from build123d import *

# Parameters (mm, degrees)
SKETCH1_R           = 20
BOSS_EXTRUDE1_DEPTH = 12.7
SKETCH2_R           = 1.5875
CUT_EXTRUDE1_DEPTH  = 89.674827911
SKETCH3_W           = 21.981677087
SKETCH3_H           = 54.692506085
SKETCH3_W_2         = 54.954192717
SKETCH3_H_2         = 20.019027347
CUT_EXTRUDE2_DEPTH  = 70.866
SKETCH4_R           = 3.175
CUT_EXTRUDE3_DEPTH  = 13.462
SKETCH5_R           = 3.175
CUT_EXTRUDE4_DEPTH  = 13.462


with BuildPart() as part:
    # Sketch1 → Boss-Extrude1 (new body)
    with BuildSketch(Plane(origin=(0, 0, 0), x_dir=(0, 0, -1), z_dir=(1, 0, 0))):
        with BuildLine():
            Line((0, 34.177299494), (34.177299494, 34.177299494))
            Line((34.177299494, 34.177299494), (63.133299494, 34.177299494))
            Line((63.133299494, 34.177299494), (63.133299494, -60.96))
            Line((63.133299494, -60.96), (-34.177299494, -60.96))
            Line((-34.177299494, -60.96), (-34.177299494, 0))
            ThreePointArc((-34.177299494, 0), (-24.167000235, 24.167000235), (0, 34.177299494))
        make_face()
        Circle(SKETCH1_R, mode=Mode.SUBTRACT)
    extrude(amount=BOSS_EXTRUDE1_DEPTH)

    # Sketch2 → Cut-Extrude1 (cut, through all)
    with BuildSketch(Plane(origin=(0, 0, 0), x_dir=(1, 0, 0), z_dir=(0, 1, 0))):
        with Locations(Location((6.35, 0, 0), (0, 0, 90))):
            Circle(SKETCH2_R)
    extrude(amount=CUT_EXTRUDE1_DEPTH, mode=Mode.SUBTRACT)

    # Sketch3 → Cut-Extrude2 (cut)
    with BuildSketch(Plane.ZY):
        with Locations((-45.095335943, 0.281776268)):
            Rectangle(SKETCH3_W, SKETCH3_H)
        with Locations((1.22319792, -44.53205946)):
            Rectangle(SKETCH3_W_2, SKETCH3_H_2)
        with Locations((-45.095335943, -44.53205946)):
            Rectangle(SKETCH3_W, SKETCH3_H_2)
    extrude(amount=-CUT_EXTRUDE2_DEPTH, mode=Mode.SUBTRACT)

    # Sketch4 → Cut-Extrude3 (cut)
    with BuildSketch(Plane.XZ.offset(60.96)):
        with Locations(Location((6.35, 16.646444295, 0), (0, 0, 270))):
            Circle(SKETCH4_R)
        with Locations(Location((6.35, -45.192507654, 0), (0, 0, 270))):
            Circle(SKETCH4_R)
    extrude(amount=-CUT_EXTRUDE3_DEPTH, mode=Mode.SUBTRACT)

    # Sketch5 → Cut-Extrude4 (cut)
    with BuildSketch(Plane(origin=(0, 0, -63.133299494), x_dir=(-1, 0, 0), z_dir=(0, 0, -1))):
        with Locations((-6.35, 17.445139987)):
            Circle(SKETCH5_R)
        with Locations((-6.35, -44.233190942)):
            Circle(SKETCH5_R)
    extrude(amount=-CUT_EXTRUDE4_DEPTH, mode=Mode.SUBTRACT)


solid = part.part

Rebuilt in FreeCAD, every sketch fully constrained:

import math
import FreeCAD as App
import Part
import Sketcher
from FreeCAD import Vector
Q = App.Units.Quantity

doc = App.newDocument("Part")
body = doc.addObject("PartDesign::Body", "Body")

# Sketch on YZ plane
sketch1 = doc.addObject("Sketcher::SketchObject", "Sketch")
body.addObject(sketch1)
sketch1.AttachmentSupport = (doc.YZ_Plane, [""])
sketch1.MapMode = "FlatFace"
sketch1.addGeometry([
    Part.LineSegment(Vector(34, -63, 0), Vector(34, 0, 0)),  # 0
    Part.ArcOfCircle(Part.Circle(Vector(0, 0, 0), Vector(0, 0, 1), 34), math.radians(0), math.radians(90)),  # 1
    Part.LineSegment(Vector(0, 34, 0), Vector(-61, 34, 0)),  # 2
    Part.LineSegment(Vector(-61, 34, 0), Vector(-61, -63, 0)),  # 3
    Part.LineSegment(Vector(-61, -63, 0), Vector(34, -63, 0)),  # 4
    Part.Circle(Vector(0, 0, 0), Vector(0, 0, 1), 20),  # 5
], False)
sketch1.addConstraint([
    Sketcher.Constraint("Tangent", 0, 2, 1, 1),
    Sketcher.Constraint("Tangent", 1, 2, 2, 1),
    Sketcher.Constraint("Coincident", 2, 2, 3, 1),
    Sketcher.Constraint("Coincident", 3, 2, 4, 1),
    Sketcher.Constraint("Coincident", 4, 2, 0, 1),
    Sketcher.Constraint("Vertical", 0),
    Sketcher.Constraint("Horizontal", 2),
    Sketcher.Constraint("Vertical", 3),
    Sketcher.Constraint("Horizontal", 4),
    Sketcher.Constraint("Coincident", 1, 3, -1, 1),
    Sketcher.Constraint("Coincident", 5, 3, -1, 1),
    Sketcher.Constraint("DistanceX", 2, 2, 2, 1, Q("2.4 in")),
    Sketcher.Constraint("Diameter", 5, 40.0),
    Sketcher.Constraint("Radius", 1, 34.177299),
    Sketcher.Constraint("DistanceY", 0, 1, 0, 2, 63.133299),
])
pad1 = doc.addObject("PartDesign::Pad", "Pad")
body.addObject(pad1)
pad1.Profile = sketch1
pad1.Length = Q("0.5 in")

# Sketch on XZ plane
sketch2 = doc.addObject("Sketcher::SketchObject", "Sketch001")
body.addObject(sketch2)
sketch2.AttachmentSupport = (doc.XZ_Plane, [""])
sketch2.MapMode = "FlatFace"
sketch2.addGeometry(Part.Circle(Vector(6.3, 0, 0), Vector(0, 0, 1), 1.6), False)
sketch2.addConstraint([
    Sketcher.Constraint("PointOnObject", 0, 3, -1),
    Sketcher.Constraint("Diameter", 0, Q("0.125 in")),
    Sketcher.Constraint("DistanceX", -1, 1, 0, 3, Q("0.25 in")),
])
pocket1 = doc.addObject("PartDesign::Pocket", "Pocket")
body.addObject(pocket1)
pocket1.Profile = sketch2
pocket1.Type = "ThroughAll"

# Sketch on YZ plane
sketch3 = doc.addObject("Sketcher::SketchObject", "Sketch002")
body.addObject(sketch3)
sketch3.AttachmentSupport = (doc.YZ_Plane, [""])
sketch3.MapMode = "FlatFace"
sketch3.addGeometry([
    Part.LineSegment(Vector(28, -56, 0), Vector(-27, -56, 0)),  # 0
    Part.LineSegment(Vector(-27, -56, 0), Vector(-27, -34, 0)),  # 1
    Part.LineSegment(Vector(-27, -34, 0), Vector(28, -34, 0)),  # 2
    Part.LineSegment(Vector(28, -34, 0), Vector(28, -56, 0)),  # 3
    Part.LineSegment(Vector(-35, -26, 0), Vector(-55, -26, 0)),  # 4
    Part.LineSegment(Vector(-55, -26, 0), Vector(-55, 29, 0)),  # 5
    Part.LineSegment(Vector(-55, 29, 0), Vector(-35, 29, 0)),  # 6
    Part.LineSegment(Vector(-35, 29, 0), Vector(-35, -26, 0)),  # 7
    Part.LineSegment(Vector(-35, -56, 0), Vector(-55, -56, 0)),  # 8
    Part.LineSegment(Vector(-55, -56, 0), Vector(-55, -34, 0)),  # 9
    Part.LineSegment(Vector(-55, -34, 0), Vector(-35, -34, 0)),  # 10
    Part.LineSegment(Vector(-35, -34, 0), Vector(-35, -56, 0)),  # 11
], False)
sketch3.addConstraint([
    Sketcher.Constraint("Coincident", 0, 2, 1, 1),
    Sketcher.Constraint("Coincident", 1, 2, 2, 1),
    Sketcher.Constraint("Coincident", 2, 2, 3, 1),
    Sketcher.Constraint("Coincident", 3, 2, 0, 1),
    Sketcher.Constraint("Coincident", 4, 2, 5, 1),
    Sketcher.Constraint("Coincident", 5, 2, 6, 1),
    Sketcher.Constraint("Coincident", 6, 2, 7, 1),
    Sketcher.Constraint("Coincident", 7, 2, 4, 1),
    Sketcher.Constraint("Coincident", 8, 2, 9, 1),
    Sketcher.Constraint("Coincident", 9, 2, 10, 1),
    Sketcher.Constraint("Coincident", 10, 2, 11, 1),
    Sketcher.Constraint("Coincident", 11, 2, 8, 1),
    Sketcher.Constraint("Horizontal", 0),
    Sketcher.Constraint("Vertical", 1),
    Sketcher.Constraint("Horizontal", 2),
    Sketcher.Constraint("Vertical", 3),
    Sketcher.Constraint("Horizontal", 4),
    Sketcher.Constraint("Vertical", 5),
    Sketcher.Constraint("Horizontal", 6),
    Sketcher.Constraint("Vertical", 7),
    Sketcher.Constraint("Horizontal", 8),
    Sketcher.Constraint("Vertical", 9),
    Sketcher.Constraint("Horizontal", 10),
    Sketcher.Constraint("Vertical", 11),
    Sketcher.Constraint("Horizontal", 3, 2, 8, 2),
    Sketcher.Constraint("Horizontal", 2, 2, 9, 2),
    Sketcher.Constraint("Vertical", 5, 2, 8, 2),
    Sketcher.Constraint("Vertical", 7, 2, 10, 2),
    Sketcher.Constraint("DistanceY", 4, 2, -1, 1, 26.253898),
    Sketcher.Constraint("DistanceY", 1, 2, 4, 2, 7.850599),
    Sketcher.Constraint("DistanceX", 0, 2, 0, 1, 54.692506),
    Sketcher.Constraint("DistanceX", 4, 2, 4, 1, 20.019027),
    Sketcher.Constraint("DistanceY", 1, 1, 1, 2, 21.981677),
    Sketcher.Constraint("DistanceY", 5, 1, 5, 2, 54.954193),
    Sketcher.Constraint("DistanceX", -1, 1, 2, 2, 27.628029),
    Sketcher.Constraint("DistanceX", 6, 2, 1, 2, 7.458069),
])
pocket2 = doc.addObject("PartDesign::Pocket", "Pocket001")
body.addObject(pocket2)
pocket2.Profile = sketch3
pocket2.Length = Q("2.79 in")
pocket2.Reversed = True

# Sketch on XZ plane
sketch4 = doc.addObject("Sketcher::SketchObject", "Sketch003")
body.addObject(sketch4)
sketch4.AttachmentSupport = (doc.XZ_Plane, [""])
sketch4.MapMode = "FlatFace"
sketch4.AttachmentOffset = App.Placement(Vector(0, 0, 2.4 * 25.4), App.Rotation())
sketch4.addGeometry([
    Part.Circle(Vector(6.3, 16.6, 0), Vector(0, 0, 1), 3.2),
    Part.Circle(Vector(6.3, -45.2, 0), Vector(0, 0, 1), 3.2),
], False)
sketch4.addConstraint([
    Sketcher.Constraint("Equal", 0, 1),
    Sketcher.Constraint("Vertical", 0, 3, 1, 3),
    Sketcher.Constraint("Diameter", 0, Q("0.25 in")),
    Sketcher.Constraint("DistanceX", -1, 1, 0, 3, Q("0.25 in")),
    Sketcher.Constraint("DistanceY", 1, 3, 0, 3, 61.838952),
    Sketcher.Constraint("DistanceY", -1, 1, 0, 3, 16.646444),
])
pocket3 = doc.addObject("PartDesign::Pocket", "Pocket002")
body.addObject(pocket3)
pocket3.Profile = sketch4
pocket3.Length = Q("0.53 in")

# Sketch on XY plane
sketch5 = doc.addObject("Sketcher::SketchObject", "Sketch004")
body.addObject(sketch5)
sketch5.AttachmentSupport = (doc.XY_Plane, [""])
sketch5.MapMode = "FlatFace"
sketch5.AttachmentOffset = App.Placement(Vector(0, 0, -63.133299), App.Rotation())
sketch5.addGeometry([
    Part.Circle(Vector(6.3, 17.4, 0), Vector(0, 0, 1), 3.2),
    Part.Circle(Vector(6.3, -44.2, 0), Vector(0, 0, 1), 3.2),
], False)
sketch5.addConstraint([
    Sketcher.Constraint("Equal", 0, 1),
    Sketcher.Constraint("Vertical", 0, 3, 1, 3),
    Sketcher.Constraint("Diameter", 0, Q("0.25 in")),
    Sketcher.Constraint("DistanceX", -1, 1, 0, 3, Q("0.25 in")),
    Sketcher.Constraint("DistanceY", -1, 1, 0, 3, 17.44514),
    Sketcher.Constraint("DistanceY", 1, 3, -1, 1, 44.233191),
])
pocket4 = doc.addObject("PartDesign::Pocket", "Pocket003")
body.addObject(pocket4)
pocket4.Profile = sketch5
pocket4.Length = Q("0.53 in")
pocket4.Reversed = True

doc.recompute()
